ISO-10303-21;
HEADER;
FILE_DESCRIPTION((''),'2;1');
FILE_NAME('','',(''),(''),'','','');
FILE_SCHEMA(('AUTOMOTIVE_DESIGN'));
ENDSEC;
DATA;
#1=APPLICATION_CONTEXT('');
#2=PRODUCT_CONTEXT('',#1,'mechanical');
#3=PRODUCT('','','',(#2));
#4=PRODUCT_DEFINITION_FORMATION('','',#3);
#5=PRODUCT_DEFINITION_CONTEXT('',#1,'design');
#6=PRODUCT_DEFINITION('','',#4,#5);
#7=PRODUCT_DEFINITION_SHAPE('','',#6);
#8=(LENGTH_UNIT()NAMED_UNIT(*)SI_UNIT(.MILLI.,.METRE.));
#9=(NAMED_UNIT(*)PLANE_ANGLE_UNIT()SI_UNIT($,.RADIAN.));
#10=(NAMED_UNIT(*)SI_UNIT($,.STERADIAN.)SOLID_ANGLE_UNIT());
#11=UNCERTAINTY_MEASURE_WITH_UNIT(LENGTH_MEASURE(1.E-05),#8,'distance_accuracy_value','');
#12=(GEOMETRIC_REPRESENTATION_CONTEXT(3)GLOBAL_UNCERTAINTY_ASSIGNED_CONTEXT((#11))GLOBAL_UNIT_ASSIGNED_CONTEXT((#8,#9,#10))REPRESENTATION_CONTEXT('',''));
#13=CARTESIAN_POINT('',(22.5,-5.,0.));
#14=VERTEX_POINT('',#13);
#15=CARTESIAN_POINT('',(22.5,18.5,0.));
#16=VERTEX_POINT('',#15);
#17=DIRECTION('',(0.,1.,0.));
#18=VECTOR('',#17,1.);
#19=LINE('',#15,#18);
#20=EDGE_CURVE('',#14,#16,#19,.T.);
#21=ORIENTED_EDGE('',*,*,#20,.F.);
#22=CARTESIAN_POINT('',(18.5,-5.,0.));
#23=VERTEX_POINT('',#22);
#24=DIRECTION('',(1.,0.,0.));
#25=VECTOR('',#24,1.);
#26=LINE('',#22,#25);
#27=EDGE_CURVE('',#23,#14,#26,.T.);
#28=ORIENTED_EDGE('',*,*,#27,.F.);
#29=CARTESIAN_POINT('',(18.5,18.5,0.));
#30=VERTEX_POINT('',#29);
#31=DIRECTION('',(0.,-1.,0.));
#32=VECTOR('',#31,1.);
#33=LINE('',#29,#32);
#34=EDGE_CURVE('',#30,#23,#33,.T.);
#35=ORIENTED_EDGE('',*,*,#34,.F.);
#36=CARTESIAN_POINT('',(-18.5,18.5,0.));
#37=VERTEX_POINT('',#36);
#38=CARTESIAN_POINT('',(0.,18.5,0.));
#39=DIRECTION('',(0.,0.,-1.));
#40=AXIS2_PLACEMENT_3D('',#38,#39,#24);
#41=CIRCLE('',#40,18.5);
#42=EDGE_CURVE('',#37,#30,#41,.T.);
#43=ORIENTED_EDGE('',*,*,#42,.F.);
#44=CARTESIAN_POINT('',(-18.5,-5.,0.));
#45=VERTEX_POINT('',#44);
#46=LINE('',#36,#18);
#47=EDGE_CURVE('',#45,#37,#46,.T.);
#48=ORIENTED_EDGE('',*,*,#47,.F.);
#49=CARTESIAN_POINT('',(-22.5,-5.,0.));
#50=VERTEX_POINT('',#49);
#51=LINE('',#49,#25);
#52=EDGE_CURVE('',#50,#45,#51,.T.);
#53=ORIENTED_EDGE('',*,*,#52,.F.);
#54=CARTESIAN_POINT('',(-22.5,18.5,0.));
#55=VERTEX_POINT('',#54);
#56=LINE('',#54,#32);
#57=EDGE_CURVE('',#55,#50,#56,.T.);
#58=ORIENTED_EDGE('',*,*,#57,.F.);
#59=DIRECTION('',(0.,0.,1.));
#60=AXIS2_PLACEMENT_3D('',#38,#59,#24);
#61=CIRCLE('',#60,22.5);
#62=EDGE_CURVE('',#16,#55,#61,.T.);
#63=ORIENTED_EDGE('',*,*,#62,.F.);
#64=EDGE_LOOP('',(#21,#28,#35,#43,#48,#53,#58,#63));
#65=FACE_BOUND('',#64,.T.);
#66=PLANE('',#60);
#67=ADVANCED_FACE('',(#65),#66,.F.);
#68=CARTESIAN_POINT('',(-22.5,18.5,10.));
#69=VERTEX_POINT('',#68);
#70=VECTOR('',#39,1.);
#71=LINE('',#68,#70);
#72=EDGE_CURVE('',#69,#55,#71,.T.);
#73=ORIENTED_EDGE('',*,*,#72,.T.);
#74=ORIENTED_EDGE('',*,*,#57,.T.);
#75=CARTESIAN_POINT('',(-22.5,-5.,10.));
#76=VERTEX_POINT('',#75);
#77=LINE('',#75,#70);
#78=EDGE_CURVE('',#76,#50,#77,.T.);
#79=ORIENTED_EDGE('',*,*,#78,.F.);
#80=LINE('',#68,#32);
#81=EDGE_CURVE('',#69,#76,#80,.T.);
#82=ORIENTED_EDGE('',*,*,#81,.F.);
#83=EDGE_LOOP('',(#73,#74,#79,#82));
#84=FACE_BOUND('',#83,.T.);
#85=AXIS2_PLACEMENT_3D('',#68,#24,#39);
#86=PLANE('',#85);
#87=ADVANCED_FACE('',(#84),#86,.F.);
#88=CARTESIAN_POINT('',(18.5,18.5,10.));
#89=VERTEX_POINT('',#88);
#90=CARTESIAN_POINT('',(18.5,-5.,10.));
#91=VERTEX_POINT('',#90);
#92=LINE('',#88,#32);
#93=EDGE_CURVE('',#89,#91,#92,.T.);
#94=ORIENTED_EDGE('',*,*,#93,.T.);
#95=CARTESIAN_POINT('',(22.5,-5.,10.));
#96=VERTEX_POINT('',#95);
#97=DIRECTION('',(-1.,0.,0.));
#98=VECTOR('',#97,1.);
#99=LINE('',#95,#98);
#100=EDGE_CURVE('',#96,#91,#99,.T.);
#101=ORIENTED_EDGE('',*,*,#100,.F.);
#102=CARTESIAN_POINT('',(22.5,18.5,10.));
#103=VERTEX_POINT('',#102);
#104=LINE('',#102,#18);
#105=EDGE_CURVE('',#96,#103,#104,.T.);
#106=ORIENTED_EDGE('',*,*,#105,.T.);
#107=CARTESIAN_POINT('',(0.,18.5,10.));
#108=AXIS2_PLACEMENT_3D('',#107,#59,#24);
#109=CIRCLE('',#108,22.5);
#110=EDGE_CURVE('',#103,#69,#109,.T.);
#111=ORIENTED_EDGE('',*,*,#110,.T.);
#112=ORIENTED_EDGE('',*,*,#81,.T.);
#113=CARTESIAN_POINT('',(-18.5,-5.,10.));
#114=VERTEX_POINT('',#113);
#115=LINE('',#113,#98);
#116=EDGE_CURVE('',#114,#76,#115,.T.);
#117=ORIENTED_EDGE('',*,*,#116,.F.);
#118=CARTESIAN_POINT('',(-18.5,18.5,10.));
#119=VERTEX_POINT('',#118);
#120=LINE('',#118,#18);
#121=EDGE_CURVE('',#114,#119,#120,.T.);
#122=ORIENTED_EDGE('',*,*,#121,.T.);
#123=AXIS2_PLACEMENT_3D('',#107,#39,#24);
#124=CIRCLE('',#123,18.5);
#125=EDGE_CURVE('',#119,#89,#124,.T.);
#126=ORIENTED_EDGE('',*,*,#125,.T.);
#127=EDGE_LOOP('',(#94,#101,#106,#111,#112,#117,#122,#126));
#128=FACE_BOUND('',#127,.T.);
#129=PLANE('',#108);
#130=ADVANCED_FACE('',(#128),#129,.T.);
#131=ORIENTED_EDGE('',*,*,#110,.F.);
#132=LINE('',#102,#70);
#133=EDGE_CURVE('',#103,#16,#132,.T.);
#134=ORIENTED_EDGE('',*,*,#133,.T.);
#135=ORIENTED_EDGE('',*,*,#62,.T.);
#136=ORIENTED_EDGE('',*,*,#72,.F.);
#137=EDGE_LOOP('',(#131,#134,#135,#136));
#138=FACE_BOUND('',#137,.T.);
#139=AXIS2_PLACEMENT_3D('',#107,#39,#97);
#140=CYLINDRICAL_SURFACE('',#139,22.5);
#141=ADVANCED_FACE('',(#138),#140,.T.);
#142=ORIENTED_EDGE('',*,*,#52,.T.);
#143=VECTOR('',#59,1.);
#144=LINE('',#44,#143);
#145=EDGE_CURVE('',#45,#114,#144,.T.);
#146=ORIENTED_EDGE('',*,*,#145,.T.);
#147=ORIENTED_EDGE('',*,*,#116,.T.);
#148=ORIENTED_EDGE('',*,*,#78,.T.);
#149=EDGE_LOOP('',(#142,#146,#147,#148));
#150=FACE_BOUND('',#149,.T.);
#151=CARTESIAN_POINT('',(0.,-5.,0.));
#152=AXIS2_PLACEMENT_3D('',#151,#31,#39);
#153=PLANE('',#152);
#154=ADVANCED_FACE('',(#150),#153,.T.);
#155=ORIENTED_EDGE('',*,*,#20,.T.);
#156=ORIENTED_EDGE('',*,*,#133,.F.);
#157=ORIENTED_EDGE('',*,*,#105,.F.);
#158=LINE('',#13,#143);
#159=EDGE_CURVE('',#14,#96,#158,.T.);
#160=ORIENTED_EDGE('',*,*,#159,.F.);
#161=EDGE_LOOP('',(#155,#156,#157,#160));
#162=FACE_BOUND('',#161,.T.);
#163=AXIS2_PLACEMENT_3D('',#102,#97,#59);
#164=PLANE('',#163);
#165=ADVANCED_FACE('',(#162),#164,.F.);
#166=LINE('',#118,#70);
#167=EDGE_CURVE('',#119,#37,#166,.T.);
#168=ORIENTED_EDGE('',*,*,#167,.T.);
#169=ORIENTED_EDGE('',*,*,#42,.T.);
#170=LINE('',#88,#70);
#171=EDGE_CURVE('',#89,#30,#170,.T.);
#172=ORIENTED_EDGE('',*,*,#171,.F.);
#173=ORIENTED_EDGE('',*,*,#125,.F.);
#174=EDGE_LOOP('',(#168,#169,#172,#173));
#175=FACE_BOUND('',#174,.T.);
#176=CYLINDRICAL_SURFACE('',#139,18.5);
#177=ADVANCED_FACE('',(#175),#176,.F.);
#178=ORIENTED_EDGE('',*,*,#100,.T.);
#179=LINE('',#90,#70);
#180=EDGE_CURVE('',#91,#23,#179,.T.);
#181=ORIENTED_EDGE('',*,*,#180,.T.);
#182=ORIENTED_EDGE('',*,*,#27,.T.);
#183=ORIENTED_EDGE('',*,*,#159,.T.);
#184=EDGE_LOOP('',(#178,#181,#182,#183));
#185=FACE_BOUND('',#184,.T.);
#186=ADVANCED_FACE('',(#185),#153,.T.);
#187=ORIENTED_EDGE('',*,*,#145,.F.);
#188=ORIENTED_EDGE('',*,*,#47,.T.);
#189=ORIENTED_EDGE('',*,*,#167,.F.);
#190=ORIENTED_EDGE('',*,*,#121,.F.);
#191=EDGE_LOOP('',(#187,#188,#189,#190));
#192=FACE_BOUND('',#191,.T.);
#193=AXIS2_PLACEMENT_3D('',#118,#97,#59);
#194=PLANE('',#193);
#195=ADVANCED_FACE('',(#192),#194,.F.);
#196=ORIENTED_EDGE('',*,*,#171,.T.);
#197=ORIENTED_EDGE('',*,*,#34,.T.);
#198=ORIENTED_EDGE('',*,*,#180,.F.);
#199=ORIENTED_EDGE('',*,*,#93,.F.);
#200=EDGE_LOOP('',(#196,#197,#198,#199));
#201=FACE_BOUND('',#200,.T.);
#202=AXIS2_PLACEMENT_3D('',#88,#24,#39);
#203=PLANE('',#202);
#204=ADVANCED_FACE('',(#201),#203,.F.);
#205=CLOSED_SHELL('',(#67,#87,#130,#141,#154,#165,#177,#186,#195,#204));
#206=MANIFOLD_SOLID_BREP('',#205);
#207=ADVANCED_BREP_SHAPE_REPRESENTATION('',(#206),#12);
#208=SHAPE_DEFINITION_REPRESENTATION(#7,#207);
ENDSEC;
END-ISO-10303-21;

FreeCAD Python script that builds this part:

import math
import FreeCAD as App
import Part
import Sketcher

V = App.Vector


def add_polygon(sketch, points):
    """Adds a closed chain of lines whose ends are joined by coincident constraints."""
    first, n = sketch.GeometryCount, len(points)
    for a, b in zip(points, points[1:] + points[:1]):
        sketch.addGeometry(Part.LineSegment(App.Vector(*a, 0), App.Vector(*b, 0)), False)
    for i in range(n):
        sketch.addConstraint(Sketcher.Constraint("Coincident", first + i, 2, first + (i + 1) % n, 1))

doc = App.newDocument("Part")
body = doc.addObject("PartDesign::Body", "Body")

# Sketch on XY plane
sketch1 = body.newObject("Sketcher::SketchObject", "Sketch")
sketch1.AttachmentSupport = (doc.getObject("XY_Plane"), [""])
sketch1.MapMode = "FlatFace"
sketch1.addGeometry([
    Part.LineSegment(V(18.5, 18.5, 0), V(18.5, 0, 0)),  # 0
    Part.LineSegment(V(18.5, 0, 0), V(22.5, 0, 0)),  # 1
    Part.LineSegment(V(22.5, 0, 0), V(22.5, 18.5, 0)),  # 2
    Part.ArcOfCircle(Part.Circle(V(0, 18.5, 0), V(0, 0, 1), 22.5), math.radians(0), math.radians(180)),  # 3
    Part.LineSegment(V(-22.5, 18.5, 0), V(-22.5, 0, 0)),  # 4
    Part.LineSegment(V(-22.5, 0, 0), V(-18.5, 0, 0)),  # 5
    Part.LineSegment(V(-18.5, 0, 0), V(-18.5, 18.5, 0)),  # 6
    Part.ArcOfCircle(Part.Circle(V(0, 18.5, 0), V(0, 0, 1), 18.5), math.radians(0), math.radians(180)),  # 7
], False)
sketch1.addConstraint([
    Sketcher.Constraint("Coincident", 0, 2, 1, 1),
    Sketcher.Constraint("Coincident", 1, 2, 2, 1),
    Sketcher.Constraint("Tangent", 2, 2, 3, 1),
    Sketcher.Constraint("Tangent", 3, 2, 4, 1),
    Sketcher.Constraint("Coincident", 4, 2, 5, 1),
    Sketcher.Constraint("Coincident", 5, 2, 6, 1),
    Sketcher.Constraint("Tangent", 6, 2, 7, 2),
    Sketcher.Constraint("Tangent", 7, 1, 0, 1),
    Sketcher.Constraint("Vertical", 0),
    Sketcher.Constraint("Horizontal", 1),
    Sketcher.Constraint("Vertical", 2),
    Sketcher.Constraint("Vertical", 4),
    Sketcher.Constraint("Horizontal", 5),
    Sketcher.Constraint("Vertical", 6),
    Sketcher.Constraint("Coincident", 7, 3, 3, 3),
    Sketcher.Constraint("Symmetric", 1, 2, 4, 2, -1, 1),
    Sketcher.Constraint("PointOnObject", 0, 2, -1),
    Sketcher.Constraint("Radius", 3, 22.5),
    Sketcher.Constraint("Radius", 7, 18.5),
    Sketcher.Constraint("DistanceY", 0, 2, 0, 1, 18.5),
])
pad1 = body.newObject("PartDesign::Pad", "Pad")
pad1.Profile = sketch1
pad1.Length = 10

# Sketch on XZ plane
sketch2 = body.newObject("Sketcher::SketchObject", "Sketch001")
sketch2.AttachmentSupport = (doc.getObject("XZ_Plane"), [""])
sketch2.MapMode = "FlatFace"
add_polygon(sketch2, [(18.5, 10), (18.5, 0), (22.5, 0), (22.5, 10)])  # lines 0-3
add_polygon(sketch2, [(-22.5, 10), (-22.5, 0), (-18.5, 0), (-18.5, 10)])  # lines 4-7
sketch2.addConstraint([
    Sketcher.Constraint("Vertical", 0),
    Sketcher.Constraint("Horizontal", 1),
    Sketcher.Constraint("Vertical", 2),
    Sketcher.Constraint("Horizontal", 3),
    Sketcher.Constraint("Vertical", 4),
    Sketcher.Constraint("Horizontal", 5),
    Sketcher.Constraint("Vertical", 6),
    Sketcher.Constraint("Horizontal", 7),
    Sketcher.Constraint("Symmetric", 1, 2, 4, 2, -1, 1),
    Sketcher.Constraint("Symmetric", 0, 2, 5, 2, -2),
    Sketcher.Constraint("Horizontal", 3, 2, 6, 2),
    Sketcher.Constraint("DistanceX", 1, 1, 1, 2, 4.0),
    Sketcher.Constraint("DistanceY", 0, 2, 0, 1, 10.0),
    Sketcher.Constraint("DistanceX", 4, 2, 0, 2, 41.0),
])
pad2 = body.newObject("PartDesign::Pad", "Pad001")
pad2.Profile = sketch2
pad2.Length = 5

doc.recompute()
